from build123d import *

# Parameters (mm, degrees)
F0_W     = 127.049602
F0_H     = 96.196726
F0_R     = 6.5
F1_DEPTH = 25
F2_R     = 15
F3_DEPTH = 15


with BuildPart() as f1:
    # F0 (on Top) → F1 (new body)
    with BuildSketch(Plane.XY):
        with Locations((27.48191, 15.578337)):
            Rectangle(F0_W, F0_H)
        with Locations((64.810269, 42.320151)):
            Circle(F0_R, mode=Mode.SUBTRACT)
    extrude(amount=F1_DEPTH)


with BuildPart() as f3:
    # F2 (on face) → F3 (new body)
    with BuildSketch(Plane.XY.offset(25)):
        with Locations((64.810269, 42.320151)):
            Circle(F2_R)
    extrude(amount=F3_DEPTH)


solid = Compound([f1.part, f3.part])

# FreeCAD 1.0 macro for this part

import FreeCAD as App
import Part
import Sketcher
from FreeCAD import Vector
Q = App.Units.Quantity

doc = App.newDocument("Part")
body = doc.addObject("PartDesign::Body", "Body")

# Sketch on XY plane
sketch1 = doc.addObject("Sketcher::SketchObject", "Sketch")
body.addObject(sketch1)
sketch1.AttachmentSupport = (doc.XY_Plane, [""])
sketch1.MapMode = "FlatFace"
sketch1.addGeometry([
    Part.LineSegment(Vector(-36, 64, 0), Vector(-36, -33, 0)),  # 0
    Part.LineSegment(Vector(-36, -33, 0), Vector(91, -33, 0)),  # 1
    Part.LineSegment(Vector(91, -33, 0), Vector(91, 64, 0)),  # 2
    Part.LineSegment(Vector(91, 64, 0), Vector(-36, 64, 0)),  # 3
    Part.Circle(Vector(65, 42, 0), Vector(0, 0, 1), 6),  # 4
], False)
sketch1.addConstraint([
    Sketcher.Constraint("Coincident", 0, 2, 1, 1),
    Sketcher.Constraint("Coincident", 1, 2, 2, 1),
    Sketcher.Constraint("Coincident", 2, 2, 3, 1),
    Sketcher.Constraint("Coincident", 3, 2, 0, 1),
    Sketcher.Constraint("Vertical", 0),
    Sketcher.Constraint("Horizontal", 1),
    Sketcher.Constraint("Vertical", 2),
    Sketcher.Constraint("Horizontal", 3),
    Sketcher.Constraint("Diameter", 4, Q("13 mm")),
    Sketcher.Constraint("DistanceX", 1, 1, 1, 2, Q("127.049602 mm")),
    Sketcher.Constraint("DistanceY", -1, 1, 2, 2, Q("63.6767 mm")),
    Sketcher.Constraint("DistanceY", 0, 2, 0, 1, Q("96.196726 mm")),
    Sketcher.Constraint("DistanceX", -1, 1, 4, 3, Q("64.810269 mm")),
    Sketcher.Constraint("DistanceY", -1, 1, 4, 3, Q("42.320151 mm")),
    Sketcher.Constraint("DistanceX", 0, 2, -1, 1, Q("36.042891 mm")),
])
pad1 = doc.addObject("PartDesign::Pad", "Pad")
body.addObject(pad1)
pad1.Profile = sketch1
pad1.Length = 25
body2 = doc.addObject("PartDesign::Body", "Body001")

# Sketch on XY plane
sketch2 = doc.addObject("Sketcher::SketchObject", "Sketch001")
body2.addObject(sketch2)
sketch2.AttachmentSupport = (doc.getObject("XY_Plane001"), [""])
sketch2.MapMode = "FlatFace"
sketch2.AttachmentOffset = App.Placement(Vector(0, 0, 25), App.Rotation())
sketch2.addGeometry(Part.Circle(Vector(65, 42, 0), Vector(0, 0, 1), 15), False)
sketch2.addConstraint([
    Sketcher.Constraint("Diameter", 0, Q("30 mm")),
    Sketcher.Constraint("DistanceX", -1, 1, 0, 3, Q("64.810269 mm")),
    Sketcher.Constraint("DistanceY", -1, 1, 0, 3, Q("42.320151 mm")),
])
pad2 = doc.addObject("PartDesign::Pad", "Pad001")
body2.addObject(pad2)
pad2.Profile = sketch2
pad2.Length = 15

doc.recompute()
